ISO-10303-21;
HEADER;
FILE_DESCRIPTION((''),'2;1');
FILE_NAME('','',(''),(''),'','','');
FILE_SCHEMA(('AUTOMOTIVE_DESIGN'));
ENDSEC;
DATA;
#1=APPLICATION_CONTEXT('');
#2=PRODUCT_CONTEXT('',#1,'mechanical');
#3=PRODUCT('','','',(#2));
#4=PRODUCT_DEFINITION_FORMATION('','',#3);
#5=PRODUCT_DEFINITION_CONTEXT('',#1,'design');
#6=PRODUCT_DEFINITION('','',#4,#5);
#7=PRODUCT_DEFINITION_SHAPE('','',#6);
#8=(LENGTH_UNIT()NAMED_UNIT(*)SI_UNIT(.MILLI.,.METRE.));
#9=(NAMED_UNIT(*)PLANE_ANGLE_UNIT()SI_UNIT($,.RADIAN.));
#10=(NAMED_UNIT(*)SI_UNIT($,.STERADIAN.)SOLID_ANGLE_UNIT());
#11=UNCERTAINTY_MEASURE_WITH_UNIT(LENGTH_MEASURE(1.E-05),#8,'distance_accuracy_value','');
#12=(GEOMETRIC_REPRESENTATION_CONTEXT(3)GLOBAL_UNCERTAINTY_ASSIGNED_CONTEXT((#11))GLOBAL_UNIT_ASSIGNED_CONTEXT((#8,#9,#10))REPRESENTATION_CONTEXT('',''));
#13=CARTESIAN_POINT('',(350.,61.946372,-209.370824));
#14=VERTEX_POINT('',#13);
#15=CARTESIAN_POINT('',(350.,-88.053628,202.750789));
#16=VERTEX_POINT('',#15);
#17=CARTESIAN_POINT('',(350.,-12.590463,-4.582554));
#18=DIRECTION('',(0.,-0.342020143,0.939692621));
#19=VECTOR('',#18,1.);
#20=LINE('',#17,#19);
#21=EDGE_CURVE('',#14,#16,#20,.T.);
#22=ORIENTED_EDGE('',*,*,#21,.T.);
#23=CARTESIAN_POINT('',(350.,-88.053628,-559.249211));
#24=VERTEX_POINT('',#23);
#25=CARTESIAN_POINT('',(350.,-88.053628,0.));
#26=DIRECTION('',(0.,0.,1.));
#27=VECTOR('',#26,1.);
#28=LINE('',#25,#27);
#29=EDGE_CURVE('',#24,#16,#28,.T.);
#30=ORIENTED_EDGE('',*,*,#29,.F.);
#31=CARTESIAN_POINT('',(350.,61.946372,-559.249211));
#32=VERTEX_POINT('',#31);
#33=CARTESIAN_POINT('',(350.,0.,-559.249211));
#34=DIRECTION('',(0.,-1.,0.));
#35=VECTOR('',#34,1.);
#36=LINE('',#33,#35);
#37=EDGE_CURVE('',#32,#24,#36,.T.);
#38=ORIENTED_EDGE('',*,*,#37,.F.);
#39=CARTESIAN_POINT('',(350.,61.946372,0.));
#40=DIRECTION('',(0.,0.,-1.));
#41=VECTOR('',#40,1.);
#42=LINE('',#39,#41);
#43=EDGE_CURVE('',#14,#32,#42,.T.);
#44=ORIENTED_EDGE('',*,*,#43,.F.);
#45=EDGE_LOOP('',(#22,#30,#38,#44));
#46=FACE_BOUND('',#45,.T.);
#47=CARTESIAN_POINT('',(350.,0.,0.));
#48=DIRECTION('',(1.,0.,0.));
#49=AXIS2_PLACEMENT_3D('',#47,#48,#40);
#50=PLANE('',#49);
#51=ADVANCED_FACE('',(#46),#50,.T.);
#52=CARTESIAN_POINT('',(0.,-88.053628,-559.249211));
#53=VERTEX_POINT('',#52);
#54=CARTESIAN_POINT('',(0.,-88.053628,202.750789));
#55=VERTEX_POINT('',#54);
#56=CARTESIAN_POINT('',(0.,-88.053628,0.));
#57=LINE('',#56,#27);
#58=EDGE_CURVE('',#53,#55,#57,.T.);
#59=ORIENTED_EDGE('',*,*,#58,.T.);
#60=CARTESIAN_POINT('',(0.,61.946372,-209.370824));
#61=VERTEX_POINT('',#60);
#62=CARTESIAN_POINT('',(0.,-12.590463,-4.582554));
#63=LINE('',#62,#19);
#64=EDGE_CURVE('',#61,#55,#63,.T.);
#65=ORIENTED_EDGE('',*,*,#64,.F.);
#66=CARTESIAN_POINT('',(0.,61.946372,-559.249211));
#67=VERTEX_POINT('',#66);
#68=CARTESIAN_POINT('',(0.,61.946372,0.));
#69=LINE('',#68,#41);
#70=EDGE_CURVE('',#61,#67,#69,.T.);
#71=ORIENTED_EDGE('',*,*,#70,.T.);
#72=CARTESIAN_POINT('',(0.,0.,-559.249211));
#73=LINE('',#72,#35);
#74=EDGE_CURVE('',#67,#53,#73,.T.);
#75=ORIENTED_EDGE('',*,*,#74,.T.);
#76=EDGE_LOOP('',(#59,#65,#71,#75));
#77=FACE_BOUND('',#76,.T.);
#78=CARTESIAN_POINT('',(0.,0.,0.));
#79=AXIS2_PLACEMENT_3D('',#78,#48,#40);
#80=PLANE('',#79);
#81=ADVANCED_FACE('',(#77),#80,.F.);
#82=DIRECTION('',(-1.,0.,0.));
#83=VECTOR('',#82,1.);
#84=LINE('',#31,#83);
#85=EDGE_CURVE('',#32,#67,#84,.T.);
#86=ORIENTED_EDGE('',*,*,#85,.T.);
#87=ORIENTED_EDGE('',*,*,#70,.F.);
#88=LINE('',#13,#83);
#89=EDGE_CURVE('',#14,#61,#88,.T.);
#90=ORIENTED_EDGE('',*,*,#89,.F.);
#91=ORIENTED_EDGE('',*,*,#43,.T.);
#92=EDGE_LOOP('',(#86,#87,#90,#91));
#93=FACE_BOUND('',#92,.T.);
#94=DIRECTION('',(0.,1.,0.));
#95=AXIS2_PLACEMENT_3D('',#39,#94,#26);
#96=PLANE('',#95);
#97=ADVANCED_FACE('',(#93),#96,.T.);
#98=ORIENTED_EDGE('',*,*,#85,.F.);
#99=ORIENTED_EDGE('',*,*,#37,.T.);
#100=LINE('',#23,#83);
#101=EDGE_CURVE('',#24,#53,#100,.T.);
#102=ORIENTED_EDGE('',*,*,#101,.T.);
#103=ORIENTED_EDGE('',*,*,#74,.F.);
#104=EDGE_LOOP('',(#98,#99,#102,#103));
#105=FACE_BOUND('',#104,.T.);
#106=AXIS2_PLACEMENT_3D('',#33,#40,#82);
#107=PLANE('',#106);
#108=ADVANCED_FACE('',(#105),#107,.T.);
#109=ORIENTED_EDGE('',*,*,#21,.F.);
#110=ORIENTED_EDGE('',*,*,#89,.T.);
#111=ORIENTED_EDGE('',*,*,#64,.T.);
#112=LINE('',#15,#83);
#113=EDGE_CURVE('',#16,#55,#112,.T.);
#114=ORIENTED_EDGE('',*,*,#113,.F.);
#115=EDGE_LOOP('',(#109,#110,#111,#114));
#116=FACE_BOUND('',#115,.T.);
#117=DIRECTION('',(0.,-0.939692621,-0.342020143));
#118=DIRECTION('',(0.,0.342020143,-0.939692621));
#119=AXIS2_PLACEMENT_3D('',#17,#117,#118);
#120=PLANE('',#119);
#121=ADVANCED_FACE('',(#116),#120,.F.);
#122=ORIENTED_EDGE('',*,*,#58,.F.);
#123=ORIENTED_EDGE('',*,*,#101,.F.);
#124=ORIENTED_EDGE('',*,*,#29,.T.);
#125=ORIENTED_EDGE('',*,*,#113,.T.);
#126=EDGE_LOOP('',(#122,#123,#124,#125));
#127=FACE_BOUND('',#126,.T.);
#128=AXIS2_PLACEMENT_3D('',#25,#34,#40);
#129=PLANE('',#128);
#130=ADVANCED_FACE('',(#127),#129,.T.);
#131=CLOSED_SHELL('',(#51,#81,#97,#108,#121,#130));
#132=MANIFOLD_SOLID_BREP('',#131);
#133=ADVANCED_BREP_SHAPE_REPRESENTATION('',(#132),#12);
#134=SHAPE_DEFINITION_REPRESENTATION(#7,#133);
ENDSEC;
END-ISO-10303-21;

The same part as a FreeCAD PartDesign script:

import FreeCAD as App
import Part
import Sketcher
from FreeCAD import Vector
Q = App.Units.Quantity


def add_polygon(sketch, points):
    """Adds a closed chain of lines whose ends are joined by coincident constraints."""
    first, n = sketch.GeometryCount, len(points)
    for a, b in zip(points, points[1:] + points[:1]):
        sketch.addGeometry(Part.LineSegment(App.Vector(*a, 0), App.Vector(*b, 0)), False)
    for i in range(n):
        sketch.addConstraint(Sketcher.Constraint("Coincident", first + i, 2, first + (i + 1) % n, 1))

doc = App.newDocument("Part")
body = doc.addObject("PartDesign::Body", "Body")

sketch1 = body.newObject("Sketcher::SketchObject", "Sketch")
sketch1.AttachmentSupport = (doc.getObject("YZ_Plane"), [""])
sketch1.MapMode = "FlatFace"
add_polygon(sketch1, [(61.9, -209.25), (-88.05, 202.75), (-88.05, -559.25), (61.95, -559.25), (61.95, -209.37)])
sketch1.addConstraint([
    Sketcher.Constraint("Vertical", 1),
    Sketcher.Constraint("Horizontal", 2),
    Sketcher.Constraint("Vertical", 3),
    Sketcher.Constraint("Parallel", 0, 4),
    Sketcher.Constraint("DistanceX", 2, 1, 2, 2, Q("150 mm")),
    Sketcher.Constraint("DistanceY", 1, 2, 1, 1, Q("762 mm")),
    Sketcher.Constraint("Angle", 0, Q("110 deg")),
    Sketcher.Constraint("DistanceY", 2, 2, 4, 2, Q("350 mm")),
    Sketcher.Constraint("DistanceY", -1, 1, 0, 2, Q("202.750789 mm")),
    Sketcher.Constraint("DistanceX", -1, 1, 4, 2, Q("61.902109 mm")),
])
pad1 = body.newObject("PartDesign::Pad", "Pad")
pad1.Profile = sketch1
pad1.Length = 350

doc.recompute()
